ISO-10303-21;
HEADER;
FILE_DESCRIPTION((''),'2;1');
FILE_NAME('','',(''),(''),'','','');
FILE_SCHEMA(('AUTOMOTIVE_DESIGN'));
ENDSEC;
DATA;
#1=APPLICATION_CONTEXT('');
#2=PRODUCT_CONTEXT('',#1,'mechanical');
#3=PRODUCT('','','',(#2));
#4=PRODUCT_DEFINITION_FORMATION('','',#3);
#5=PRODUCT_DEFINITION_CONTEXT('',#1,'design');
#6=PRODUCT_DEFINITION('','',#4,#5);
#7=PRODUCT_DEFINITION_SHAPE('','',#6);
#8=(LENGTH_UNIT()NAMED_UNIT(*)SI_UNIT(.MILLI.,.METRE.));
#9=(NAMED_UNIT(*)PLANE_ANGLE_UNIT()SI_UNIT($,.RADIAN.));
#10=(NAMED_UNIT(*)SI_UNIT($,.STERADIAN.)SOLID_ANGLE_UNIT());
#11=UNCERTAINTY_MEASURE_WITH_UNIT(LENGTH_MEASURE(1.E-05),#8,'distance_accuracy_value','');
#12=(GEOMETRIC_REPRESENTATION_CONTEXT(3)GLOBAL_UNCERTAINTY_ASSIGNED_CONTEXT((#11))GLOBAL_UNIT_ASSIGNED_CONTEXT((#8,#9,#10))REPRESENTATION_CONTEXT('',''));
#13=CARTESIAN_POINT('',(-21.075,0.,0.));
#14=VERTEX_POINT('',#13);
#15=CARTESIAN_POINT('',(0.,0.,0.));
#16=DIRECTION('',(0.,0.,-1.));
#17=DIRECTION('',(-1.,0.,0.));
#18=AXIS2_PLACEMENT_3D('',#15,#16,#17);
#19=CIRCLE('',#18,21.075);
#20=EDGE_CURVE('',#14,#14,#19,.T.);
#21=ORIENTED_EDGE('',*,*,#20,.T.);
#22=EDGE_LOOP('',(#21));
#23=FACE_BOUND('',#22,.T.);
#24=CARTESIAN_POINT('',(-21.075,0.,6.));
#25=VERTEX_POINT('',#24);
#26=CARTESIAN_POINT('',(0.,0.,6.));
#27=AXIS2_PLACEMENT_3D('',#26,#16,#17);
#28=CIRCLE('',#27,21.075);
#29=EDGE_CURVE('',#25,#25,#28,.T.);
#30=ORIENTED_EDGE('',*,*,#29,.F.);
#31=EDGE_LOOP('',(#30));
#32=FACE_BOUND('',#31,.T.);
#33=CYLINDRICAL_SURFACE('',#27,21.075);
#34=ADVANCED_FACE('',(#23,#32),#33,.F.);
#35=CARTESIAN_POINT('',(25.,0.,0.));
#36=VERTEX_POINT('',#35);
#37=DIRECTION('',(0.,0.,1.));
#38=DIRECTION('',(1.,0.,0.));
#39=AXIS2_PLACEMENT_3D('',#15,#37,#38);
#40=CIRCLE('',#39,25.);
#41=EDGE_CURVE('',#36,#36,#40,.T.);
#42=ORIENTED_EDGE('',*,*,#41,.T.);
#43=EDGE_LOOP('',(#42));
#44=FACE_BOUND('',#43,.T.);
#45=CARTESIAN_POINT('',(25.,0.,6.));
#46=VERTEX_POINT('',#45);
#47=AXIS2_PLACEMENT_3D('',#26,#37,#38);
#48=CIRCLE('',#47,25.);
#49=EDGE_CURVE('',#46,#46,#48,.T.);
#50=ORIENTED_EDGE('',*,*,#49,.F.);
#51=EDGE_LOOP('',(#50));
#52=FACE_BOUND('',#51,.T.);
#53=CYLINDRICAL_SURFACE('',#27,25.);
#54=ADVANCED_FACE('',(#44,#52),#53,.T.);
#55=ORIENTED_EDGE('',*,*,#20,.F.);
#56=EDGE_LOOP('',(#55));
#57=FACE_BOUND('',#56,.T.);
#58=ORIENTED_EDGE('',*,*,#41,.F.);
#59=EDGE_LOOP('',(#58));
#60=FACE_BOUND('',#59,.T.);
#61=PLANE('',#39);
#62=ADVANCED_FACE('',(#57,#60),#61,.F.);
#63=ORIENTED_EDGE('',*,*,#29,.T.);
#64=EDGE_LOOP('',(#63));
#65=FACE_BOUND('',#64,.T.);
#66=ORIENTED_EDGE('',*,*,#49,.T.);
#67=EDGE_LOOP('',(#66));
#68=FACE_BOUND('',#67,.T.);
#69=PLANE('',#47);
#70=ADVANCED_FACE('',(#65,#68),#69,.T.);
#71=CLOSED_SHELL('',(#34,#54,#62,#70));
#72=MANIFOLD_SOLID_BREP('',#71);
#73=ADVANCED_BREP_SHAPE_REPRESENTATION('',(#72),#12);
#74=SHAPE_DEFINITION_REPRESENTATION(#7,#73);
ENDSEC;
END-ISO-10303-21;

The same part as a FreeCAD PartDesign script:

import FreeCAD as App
import Part
import Sketcher
from FreeCAD import Vector
Q = App.Units.Quantity

doc = App.newDocument("Part")
params = doc.addObject("Spreadsheet::Sheet", "Params")
for row, (alias, value) in enumerate([
    ("sketch1_diameter", "50 mm"),
    ("pad1_length", "6 mm"),
    ("sketch2_diameter", "42.15 mm"),
], start=1):
    params.set(f"A{row}", alias)
    params.set(f"B{row}", "=" + value)
    params.setAlias(f"B{row}", alias)

body = doc.addObject("PartDesign::Body", "Body")

# Sketch on XY plane
sketch1 = body.newObject("Sketcher::SketchObject", "Sketch")
sketch1.AttachmentSupport = (doc.getObject("XY_Plane"), [""])
sketch1.MapMode = "FlatFace"
sketch1.addGeometry(Part.Circle(Vector(0, 0, 0), Vector(0, 0, 1), 25), False)
sketch1.addConstraint([
    Sketcher.Constraint("Coincident", 0, 3, -1, 1),
    Sketcher.Constraint("Diameter", 0, Q("50 mm")),
])
sketch1.setExpression("Constraints[1]", "Params.sketch1_diameter")
pad1 = body.newObject("PartDesign::Pad", "Pad")
pad1.Profile = sketch1
pad1.setExpression("Length", "Params.pad1_length")

# Sketch on XY plane
sketch2 = body.newObject("Sketcher::SketchObject", "Sketch001")
sketch2.AttachmentSupport = (doc.getObject("XY_Plane"), [""])
sketch2.MapMode = "FlatFace"
sketch2.addGeometry(Part.Circle(Vector(0, 0, 0), Vector(0, 0, 1), 21.075), False)
sketch2.addConstraint([
    Sketcher.Constraint("Coincident", 0, 3, -1, 1),
    Sketcher.Constraint("Diameter", 0, Q("42.15 mm")),
])
sketch2.setExpression("Constraints[1]", "Params.sketch2_diameter")
pocket1 = body.newObject("PartDesign::Pocket", "Pocket")
pocket1.Profile = sketch2
pocket1.Type = "ThroughAll"
pocket1.Reversed = True

doc.recompute()
